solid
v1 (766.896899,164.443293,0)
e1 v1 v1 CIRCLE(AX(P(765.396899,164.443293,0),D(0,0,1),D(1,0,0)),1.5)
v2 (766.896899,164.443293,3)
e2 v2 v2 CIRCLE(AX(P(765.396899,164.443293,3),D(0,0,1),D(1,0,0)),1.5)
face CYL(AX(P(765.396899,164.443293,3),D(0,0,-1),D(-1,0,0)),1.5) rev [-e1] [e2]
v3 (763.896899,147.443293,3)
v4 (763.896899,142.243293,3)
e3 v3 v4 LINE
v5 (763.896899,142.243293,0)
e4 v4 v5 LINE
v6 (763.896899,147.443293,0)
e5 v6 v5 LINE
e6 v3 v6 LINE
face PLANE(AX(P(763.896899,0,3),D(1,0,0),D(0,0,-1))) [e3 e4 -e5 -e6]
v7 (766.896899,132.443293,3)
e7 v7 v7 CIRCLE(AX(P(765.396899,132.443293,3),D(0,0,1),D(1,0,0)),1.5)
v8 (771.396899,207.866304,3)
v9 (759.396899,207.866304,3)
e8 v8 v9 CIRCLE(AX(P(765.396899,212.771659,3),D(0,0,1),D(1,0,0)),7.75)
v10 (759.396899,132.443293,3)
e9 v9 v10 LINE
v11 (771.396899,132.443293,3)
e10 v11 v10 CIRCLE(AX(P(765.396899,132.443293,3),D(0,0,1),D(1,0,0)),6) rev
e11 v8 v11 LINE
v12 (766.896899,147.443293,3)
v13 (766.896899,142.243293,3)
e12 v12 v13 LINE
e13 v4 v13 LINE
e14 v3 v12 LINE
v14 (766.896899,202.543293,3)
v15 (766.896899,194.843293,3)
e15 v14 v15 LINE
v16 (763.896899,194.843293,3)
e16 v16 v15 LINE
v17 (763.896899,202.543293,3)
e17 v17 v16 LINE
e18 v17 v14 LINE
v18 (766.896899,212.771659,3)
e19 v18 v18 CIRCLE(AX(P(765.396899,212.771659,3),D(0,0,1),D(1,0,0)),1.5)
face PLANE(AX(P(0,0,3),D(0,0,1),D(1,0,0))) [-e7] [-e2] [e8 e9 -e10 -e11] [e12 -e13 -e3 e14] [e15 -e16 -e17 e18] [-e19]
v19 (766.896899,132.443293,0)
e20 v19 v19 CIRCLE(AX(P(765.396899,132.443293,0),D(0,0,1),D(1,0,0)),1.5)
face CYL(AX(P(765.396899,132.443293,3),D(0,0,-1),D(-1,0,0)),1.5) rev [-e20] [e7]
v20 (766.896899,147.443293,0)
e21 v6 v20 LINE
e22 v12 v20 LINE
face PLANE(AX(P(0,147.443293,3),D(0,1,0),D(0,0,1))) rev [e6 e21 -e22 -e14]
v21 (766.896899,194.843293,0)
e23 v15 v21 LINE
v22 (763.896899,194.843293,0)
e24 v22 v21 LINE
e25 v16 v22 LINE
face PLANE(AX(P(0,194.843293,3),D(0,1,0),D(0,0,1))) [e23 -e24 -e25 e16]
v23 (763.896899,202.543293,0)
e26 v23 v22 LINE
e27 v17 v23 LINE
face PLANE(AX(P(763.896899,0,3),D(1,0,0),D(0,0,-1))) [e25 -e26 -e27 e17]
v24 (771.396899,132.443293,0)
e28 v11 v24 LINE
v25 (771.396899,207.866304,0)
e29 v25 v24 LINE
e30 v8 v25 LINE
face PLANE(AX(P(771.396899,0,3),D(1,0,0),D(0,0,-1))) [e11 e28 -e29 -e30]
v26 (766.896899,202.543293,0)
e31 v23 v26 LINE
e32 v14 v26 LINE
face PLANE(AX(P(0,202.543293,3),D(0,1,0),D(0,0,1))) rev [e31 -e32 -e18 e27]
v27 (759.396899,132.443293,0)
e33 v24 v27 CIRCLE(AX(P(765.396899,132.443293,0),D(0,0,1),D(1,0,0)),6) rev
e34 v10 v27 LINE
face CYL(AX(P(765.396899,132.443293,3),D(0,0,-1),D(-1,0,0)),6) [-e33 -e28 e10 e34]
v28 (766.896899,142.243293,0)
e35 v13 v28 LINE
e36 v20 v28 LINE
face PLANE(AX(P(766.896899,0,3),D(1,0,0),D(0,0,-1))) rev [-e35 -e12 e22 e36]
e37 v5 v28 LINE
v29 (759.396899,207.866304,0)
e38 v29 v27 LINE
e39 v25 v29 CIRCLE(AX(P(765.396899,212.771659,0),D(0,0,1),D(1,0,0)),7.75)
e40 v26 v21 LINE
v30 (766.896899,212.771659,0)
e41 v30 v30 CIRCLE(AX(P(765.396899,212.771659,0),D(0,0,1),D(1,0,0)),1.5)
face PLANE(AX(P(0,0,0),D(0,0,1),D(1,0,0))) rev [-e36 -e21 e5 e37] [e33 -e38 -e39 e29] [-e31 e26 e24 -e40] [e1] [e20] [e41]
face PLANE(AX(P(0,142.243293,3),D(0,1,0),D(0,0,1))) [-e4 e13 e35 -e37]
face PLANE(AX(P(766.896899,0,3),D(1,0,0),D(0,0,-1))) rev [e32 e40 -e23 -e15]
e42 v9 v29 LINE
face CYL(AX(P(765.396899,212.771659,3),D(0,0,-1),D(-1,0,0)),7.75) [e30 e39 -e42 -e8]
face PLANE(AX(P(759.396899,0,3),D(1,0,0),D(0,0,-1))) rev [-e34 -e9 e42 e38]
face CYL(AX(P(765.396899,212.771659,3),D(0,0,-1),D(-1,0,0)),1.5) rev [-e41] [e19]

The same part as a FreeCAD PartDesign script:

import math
import FreeCAD as App
import Part
import Sketcher

doc = App.newDocument("Part")
body = doc.addObject("PartDesign::Body", "Body")

sketch1 = body.newObject("Sketcher::SketchObject", "Sketch")
sketch1.AttachmentSupport = (doc.getObject("XY_Plane"), [""])
sketch1.MapMode = "FlatFace"
sketch1.addGeometry([
    Part.ArcOfCircle(Part.Circle(App.Vector(765.4, 212.8, 0), App.Vector(0, 0, 1), 7.8), math.radians(-39), math.radians(219)),
    Part.LineSegment(App.Vector(759.4, 207.9, 0), App.Vector(759.4, 132.4, 0)),
    Part.ArcOfCircle(Part.Circle(App.Vector(765.4, 132.4, 0), App.Vector(0, 0, 1), 6), math.radians(180), math.radians(360)),
    Part.LineSegment(App.Vector(771.4, 132.4, 0), App.Vector(771.4, 207.9, 0)),
    Part.Circle(App.Vector(765.4, 132.4, 0), App.Vector(0, 0, 1), 1.5),
    Part.LineSegment(App.Vector(766.9, 142.2, 0), App.Vector(763.9, 142.2, 0)),
    Part.LineSegment(App.Vector(763.9, 142.2, 0), App.Vector(763.9, 147.4, 0)),
    Part.LineSegment(App.Vector(763.9, 147.4, 0), App.Vector(766.9, 147.4, 0)),
    Part.LineSegment(App.Vector(766.9, 147.4, 0), App.Vector(766.9, 142.2, 0)),
    Part.Circle(App.Vector(765.4, 164.4, 0), App.Vector(0, 0, 1), 1.5),
    Part.LineSegment(App.Vector(766.9, 194.8, 0), App.Vector(763.9, 194.8, 0)),
    Part.LineSegment(App.Vector(763.9, 194.8, 0), App.Vector(763.9, 202.5, 0)),
    Part.LineSegment(App.Vector(763.9, 202.5, 0), App.Vector(766.9, 202.5, 0)),
    Part.LineSegment(App.Vector(766.9, 202.5, 0), App.Vector(766.9, 194.8, 0)),
    Part.Circle(App.Vector(765.4, 212.8, 0), App.Vector(0, 0, 1), 1.5),
], False)
sketch1.addConstraint([
    Sketcher.Constraint("Coincident", 0, 2, 1, 1),
    Sketcher.Constraint("Tangent", 1, 2, 2, 1),
    Sketcher.Constraint("Tangent", 2, 2, 3, 1),
    Sketcher.Constraint("Coincident", 3, 2, 0, 1),
    Sketcher.Constraint("Coincident", 5, 2, 6, 1),
    Sketcher.Constraint("Coincident", 6, 2, 7, 1),
    Sketcher.Constraint("Coincident", 7, 2, 8, 1),
    Sketcher.Constraint("Coincident", 8, 2, 5, 1),
    Sketcher.Constraint("Coincident", 10, 2, 11, 1),
    Sketcher.Constraint("Coincident", 11, 2, 12, 1),
    Sketcher.Constraint("Coincident", 12, 2, 13, 1),
    Sketcher.Constraint("Coincident", 13, 2, 10, 1),
    Sketcher.Constraint("Vertical", 1),
    Sketcher.Constraint("Vertical", 3),
    Sketcher.Constraint("Horizontal", 5),
    Sketcher.Constraint("Vertical", 6),
    Sketcher.Constraint("Horizontal", 7),
    Sketcher.Constraint("Vertical", 8),
    Sketcher.Constraint("Horizontal", 10),
    Sketcher.Constraint("Vertical", 11),
    Sketcher.Constraint("Horizontal", 12),
    Sketcher.Constraint("Vertical", 13),
    Sketcher.Constraint("Coincident", 4, 3, 2, 3),
    Sketcher.Constraint("Coincident", 14, 3, 0, 3),
    Sketcher.Constraint("Equal", 4, 9),
    Sketcher.Constraint("Equal", 9, 14),
    Sketcher.Constraint("Horizontal", 0, 2, 3, 2),
    Sketcher.Constraint("Vertical", 4, 3, 9, 3),
    Sketcher.Constraint("Vertical", 6, 2, 10, 2),
    Sketcher.Constraint("Vertical", 8, 2, 12, 2),
    Sketcher.Constraint("Diameter", 4, 3.0),
    Sketcher.Constraint("Radius", 2, 6.0),
    Sketcher.Constraint("DistanceX", 5, 2, 5, 1, 3.0),
    Sketcher.Constraint("Radius", 0, 7.75),
    Sketcher.Constraint("DistanceY", 6, 1, 6, 2, 5.2),
    Sketcher.Constraint("DistanceY", 11, 1, 11, 2, 7.7),
    Sketcher.Constraint("DistanceY", 2, 3, 9, 3, 32.0),
    Sketcher.Constraint("DistanceY", 2, 3, 6, 2, 15.0),
    Sketcher.Constraint("DistanceX", 5, 2, 2, 3, 1.5),
    Sketcher.Constraint("DistanceY", 9, 3, 10, 2, 30.4),
    Sketcher.Constraint("DistanceY", 1, 2, 1, 1, 75.423011),
    Sketcher.Constraint("DistanceX", -1, 1, 0, 3, 765.396899),
    Sketcher.Constraint("DistanceY", -1, 1, 0, 3, 212.771659),
])
pad1 = body.newObject("PartDesign::Pad", "Pad")
pad1.Profile = sketch1
pad1.Length = 3

doc.recompute()
